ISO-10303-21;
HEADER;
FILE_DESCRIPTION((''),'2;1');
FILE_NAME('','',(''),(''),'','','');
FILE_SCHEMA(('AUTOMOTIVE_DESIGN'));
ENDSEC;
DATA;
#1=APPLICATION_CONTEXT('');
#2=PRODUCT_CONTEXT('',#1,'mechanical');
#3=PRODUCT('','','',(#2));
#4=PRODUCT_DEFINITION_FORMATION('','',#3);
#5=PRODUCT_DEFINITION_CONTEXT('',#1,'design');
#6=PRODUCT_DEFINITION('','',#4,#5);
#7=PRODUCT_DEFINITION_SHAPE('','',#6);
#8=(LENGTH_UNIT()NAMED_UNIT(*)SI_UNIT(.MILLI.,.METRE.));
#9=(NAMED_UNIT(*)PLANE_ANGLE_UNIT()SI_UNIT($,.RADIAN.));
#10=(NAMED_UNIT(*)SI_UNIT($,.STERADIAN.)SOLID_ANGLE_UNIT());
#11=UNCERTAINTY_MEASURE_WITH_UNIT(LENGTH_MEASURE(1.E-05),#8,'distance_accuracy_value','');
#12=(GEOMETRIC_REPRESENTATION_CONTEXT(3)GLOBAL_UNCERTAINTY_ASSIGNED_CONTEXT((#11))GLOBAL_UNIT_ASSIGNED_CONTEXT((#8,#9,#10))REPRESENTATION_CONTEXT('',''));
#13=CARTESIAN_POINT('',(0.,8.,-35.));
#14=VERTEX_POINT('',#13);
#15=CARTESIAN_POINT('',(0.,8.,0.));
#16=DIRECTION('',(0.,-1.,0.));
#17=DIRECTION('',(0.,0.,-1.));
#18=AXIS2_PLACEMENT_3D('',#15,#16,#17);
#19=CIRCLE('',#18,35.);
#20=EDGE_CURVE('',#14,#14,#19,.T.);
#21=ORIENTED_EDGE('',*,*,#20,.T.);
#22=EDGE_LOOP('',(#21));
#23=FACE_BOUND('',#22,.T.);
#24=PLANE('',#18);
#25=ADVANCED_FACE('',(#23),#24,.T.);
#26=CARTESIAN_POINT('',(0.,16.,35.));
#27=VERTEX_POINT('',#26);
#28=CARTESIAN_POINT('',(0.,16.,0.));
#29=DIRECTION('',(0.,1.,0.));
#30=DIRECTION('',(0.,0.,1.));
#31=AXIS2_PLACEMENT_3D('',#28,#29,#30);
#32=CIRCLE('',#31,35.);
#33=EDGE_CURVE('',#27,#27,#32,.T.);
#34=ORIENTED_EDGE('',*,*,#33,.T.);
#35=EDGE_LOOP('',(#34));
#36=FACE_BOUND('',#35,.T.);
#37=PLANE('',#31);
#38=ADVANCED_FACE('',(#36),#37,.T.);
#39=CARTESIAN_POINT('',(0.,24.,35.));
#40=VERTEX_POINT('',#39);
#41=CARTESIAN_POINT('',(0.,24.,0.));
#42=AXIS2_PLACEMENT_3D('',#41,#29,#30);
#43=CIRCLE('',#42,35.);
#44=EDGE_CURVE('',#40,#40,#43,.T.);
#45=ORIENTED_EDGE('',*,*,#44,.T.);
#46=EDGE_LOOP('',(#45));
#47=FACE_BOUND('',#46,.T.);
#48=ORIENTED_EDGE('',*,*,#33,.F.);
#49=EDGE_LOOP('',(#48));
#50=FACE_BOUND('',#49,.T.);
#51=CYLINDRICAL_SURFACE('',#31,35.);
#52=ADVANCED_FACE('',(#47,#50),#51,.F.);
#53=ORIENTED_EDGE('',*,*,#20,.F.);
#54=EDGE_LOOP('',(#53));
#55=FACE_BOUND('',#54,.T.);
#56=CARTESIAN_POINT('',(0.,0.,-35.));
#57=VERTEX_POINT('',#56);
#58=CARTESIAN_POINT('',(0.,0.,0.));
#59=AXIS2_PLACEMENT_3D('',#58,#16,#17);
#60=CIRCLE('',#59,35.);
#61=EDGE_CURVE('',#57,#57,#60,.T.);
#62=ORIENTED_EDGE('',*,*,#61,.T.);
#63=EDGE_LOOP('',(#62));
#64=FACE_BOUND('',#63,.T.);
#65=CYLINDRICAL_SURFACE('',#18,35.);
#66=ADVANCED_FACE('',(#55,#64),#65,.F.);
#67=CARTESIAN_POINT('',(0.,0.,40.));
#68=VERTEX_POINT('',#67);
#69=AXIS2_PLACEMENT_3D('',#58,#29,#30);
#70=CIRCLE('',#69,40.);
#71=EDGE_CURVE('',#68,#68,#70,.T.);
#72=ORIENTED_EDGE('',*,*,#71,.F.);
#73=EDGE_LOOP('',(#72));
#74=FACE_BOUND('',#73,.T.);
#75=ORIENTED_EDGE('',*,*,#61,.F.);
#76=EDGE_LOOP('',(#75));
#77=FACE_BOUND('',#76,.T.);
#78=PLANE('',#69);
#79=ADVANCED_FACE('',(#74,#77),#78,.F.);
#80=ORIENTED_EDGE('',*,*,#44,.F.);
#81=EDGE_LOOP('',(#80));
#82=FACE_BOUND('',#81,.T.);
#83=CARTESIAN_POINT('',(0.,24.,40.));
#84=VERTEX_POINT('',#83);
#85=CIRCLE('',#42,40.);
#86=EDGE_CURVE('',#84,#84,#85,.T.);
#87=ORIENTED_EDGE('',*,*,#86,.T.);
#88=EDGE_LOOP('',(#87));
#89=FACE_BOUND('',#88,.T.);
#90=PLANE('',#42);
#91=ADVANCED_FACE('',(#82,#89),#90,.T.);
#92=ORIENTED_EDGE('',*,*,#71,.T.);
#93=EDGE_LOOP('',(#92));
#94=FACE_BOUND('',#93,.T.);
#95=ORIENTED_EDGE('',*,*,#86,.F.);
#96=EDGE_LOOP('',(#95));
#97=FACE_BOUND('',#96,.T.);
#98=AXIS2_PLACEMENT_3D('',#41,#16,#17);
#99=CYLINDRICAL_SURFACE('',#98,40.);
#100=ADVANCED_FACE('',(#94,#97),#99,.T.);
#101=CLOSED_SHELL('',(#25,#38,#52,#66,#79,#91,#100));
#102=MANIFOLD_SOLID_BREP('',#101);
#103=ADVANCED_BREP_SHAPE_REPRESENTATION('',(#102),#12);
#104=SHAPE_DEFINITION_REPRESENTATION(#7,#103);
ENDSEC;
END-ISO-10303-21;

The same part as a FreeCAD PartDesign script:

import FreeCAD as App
import Part
import Sketcher

doc = App.newDocument("Part")
body = doc.addObject("PartDesign::Body", "Body")

# Sketch on XZ plane
sketch1 = body.newObject("Sketcher::SketchObject", "Sketch")
sketch1.AttachmentSupport = (doc.getObject("XZ_Plane"), [""])
sketch1.MapMode = "FlatFace"
sketch1.addGeometry(Part.Circle(App.Vector(0, 0, 0), App.Vector(0, 0, 1), 40), False)
sketch1.addConstraint(Sketcher.Constraint("Coincident", 0, 3, -1, 1))
sketch1.addConstraint(Sketcher.Constraint("Diameter", 0, 80.0))
pad1 = body.newObject("PartDesign::Pad", "Pad")
pad1.Profile = sketch1
pad1.Length = 24
pad1.Reversed = True

# Sketch on XZ plane
sketch2 = body.newObject("Sketcher::SketchObject", "Sketch001")
sketch2.AttachmentSupport = (doc.getObject("XZ_Plane"), [""])
sketch2.MapMode = "FlatFace"
sketch2.AttachmentOffset = App.Placement(App.Vector(0, 0, -24), App.Rotation())
sketch2.addGeometry(Part.Circle(App.Vector(0, 0, 0), App.Vector(0, 0, 1), 35), False)
sketch2.addConstraint(Sketcher.Constraint("Coincident", 0, 3, -1, 1))
sketch2.addConstraint(Sketcher.Constraint("Diameter", 0, 70.0))
pocket1 = body.newObject("PartDesign::Pocket", "Pocket")
pocket1.Profile = sketch2
pocket1.Length = 8
pocket1.Reversed = True

# Sketch on XZ plane
sketch3 = body.newObject("Sketcher::SketchObject", "Sketch002")
sketch3.AttachmentSupport = (doc.getObject("XZ_Plane"), [""])
sketch3.MapMode = "FlatFace"
sketch3.addGeometry(Part.Circle(App.Vector(0, 0, 0), App.Vector(0, 0, 1), 35), False)
sketch3.addConstraint(Sketcher.Constraint("Coincident", 0, 3, -1, 1))
sketch3.addConstraint(Sketcher.Constraint("Diameter", 0, 70.0))
pocket2 = body.newObject("PartDesign::Pocket", "Pocket001")
pocket2.Profile = sketch3
pocket2.Length = 8

doc.recompute()
